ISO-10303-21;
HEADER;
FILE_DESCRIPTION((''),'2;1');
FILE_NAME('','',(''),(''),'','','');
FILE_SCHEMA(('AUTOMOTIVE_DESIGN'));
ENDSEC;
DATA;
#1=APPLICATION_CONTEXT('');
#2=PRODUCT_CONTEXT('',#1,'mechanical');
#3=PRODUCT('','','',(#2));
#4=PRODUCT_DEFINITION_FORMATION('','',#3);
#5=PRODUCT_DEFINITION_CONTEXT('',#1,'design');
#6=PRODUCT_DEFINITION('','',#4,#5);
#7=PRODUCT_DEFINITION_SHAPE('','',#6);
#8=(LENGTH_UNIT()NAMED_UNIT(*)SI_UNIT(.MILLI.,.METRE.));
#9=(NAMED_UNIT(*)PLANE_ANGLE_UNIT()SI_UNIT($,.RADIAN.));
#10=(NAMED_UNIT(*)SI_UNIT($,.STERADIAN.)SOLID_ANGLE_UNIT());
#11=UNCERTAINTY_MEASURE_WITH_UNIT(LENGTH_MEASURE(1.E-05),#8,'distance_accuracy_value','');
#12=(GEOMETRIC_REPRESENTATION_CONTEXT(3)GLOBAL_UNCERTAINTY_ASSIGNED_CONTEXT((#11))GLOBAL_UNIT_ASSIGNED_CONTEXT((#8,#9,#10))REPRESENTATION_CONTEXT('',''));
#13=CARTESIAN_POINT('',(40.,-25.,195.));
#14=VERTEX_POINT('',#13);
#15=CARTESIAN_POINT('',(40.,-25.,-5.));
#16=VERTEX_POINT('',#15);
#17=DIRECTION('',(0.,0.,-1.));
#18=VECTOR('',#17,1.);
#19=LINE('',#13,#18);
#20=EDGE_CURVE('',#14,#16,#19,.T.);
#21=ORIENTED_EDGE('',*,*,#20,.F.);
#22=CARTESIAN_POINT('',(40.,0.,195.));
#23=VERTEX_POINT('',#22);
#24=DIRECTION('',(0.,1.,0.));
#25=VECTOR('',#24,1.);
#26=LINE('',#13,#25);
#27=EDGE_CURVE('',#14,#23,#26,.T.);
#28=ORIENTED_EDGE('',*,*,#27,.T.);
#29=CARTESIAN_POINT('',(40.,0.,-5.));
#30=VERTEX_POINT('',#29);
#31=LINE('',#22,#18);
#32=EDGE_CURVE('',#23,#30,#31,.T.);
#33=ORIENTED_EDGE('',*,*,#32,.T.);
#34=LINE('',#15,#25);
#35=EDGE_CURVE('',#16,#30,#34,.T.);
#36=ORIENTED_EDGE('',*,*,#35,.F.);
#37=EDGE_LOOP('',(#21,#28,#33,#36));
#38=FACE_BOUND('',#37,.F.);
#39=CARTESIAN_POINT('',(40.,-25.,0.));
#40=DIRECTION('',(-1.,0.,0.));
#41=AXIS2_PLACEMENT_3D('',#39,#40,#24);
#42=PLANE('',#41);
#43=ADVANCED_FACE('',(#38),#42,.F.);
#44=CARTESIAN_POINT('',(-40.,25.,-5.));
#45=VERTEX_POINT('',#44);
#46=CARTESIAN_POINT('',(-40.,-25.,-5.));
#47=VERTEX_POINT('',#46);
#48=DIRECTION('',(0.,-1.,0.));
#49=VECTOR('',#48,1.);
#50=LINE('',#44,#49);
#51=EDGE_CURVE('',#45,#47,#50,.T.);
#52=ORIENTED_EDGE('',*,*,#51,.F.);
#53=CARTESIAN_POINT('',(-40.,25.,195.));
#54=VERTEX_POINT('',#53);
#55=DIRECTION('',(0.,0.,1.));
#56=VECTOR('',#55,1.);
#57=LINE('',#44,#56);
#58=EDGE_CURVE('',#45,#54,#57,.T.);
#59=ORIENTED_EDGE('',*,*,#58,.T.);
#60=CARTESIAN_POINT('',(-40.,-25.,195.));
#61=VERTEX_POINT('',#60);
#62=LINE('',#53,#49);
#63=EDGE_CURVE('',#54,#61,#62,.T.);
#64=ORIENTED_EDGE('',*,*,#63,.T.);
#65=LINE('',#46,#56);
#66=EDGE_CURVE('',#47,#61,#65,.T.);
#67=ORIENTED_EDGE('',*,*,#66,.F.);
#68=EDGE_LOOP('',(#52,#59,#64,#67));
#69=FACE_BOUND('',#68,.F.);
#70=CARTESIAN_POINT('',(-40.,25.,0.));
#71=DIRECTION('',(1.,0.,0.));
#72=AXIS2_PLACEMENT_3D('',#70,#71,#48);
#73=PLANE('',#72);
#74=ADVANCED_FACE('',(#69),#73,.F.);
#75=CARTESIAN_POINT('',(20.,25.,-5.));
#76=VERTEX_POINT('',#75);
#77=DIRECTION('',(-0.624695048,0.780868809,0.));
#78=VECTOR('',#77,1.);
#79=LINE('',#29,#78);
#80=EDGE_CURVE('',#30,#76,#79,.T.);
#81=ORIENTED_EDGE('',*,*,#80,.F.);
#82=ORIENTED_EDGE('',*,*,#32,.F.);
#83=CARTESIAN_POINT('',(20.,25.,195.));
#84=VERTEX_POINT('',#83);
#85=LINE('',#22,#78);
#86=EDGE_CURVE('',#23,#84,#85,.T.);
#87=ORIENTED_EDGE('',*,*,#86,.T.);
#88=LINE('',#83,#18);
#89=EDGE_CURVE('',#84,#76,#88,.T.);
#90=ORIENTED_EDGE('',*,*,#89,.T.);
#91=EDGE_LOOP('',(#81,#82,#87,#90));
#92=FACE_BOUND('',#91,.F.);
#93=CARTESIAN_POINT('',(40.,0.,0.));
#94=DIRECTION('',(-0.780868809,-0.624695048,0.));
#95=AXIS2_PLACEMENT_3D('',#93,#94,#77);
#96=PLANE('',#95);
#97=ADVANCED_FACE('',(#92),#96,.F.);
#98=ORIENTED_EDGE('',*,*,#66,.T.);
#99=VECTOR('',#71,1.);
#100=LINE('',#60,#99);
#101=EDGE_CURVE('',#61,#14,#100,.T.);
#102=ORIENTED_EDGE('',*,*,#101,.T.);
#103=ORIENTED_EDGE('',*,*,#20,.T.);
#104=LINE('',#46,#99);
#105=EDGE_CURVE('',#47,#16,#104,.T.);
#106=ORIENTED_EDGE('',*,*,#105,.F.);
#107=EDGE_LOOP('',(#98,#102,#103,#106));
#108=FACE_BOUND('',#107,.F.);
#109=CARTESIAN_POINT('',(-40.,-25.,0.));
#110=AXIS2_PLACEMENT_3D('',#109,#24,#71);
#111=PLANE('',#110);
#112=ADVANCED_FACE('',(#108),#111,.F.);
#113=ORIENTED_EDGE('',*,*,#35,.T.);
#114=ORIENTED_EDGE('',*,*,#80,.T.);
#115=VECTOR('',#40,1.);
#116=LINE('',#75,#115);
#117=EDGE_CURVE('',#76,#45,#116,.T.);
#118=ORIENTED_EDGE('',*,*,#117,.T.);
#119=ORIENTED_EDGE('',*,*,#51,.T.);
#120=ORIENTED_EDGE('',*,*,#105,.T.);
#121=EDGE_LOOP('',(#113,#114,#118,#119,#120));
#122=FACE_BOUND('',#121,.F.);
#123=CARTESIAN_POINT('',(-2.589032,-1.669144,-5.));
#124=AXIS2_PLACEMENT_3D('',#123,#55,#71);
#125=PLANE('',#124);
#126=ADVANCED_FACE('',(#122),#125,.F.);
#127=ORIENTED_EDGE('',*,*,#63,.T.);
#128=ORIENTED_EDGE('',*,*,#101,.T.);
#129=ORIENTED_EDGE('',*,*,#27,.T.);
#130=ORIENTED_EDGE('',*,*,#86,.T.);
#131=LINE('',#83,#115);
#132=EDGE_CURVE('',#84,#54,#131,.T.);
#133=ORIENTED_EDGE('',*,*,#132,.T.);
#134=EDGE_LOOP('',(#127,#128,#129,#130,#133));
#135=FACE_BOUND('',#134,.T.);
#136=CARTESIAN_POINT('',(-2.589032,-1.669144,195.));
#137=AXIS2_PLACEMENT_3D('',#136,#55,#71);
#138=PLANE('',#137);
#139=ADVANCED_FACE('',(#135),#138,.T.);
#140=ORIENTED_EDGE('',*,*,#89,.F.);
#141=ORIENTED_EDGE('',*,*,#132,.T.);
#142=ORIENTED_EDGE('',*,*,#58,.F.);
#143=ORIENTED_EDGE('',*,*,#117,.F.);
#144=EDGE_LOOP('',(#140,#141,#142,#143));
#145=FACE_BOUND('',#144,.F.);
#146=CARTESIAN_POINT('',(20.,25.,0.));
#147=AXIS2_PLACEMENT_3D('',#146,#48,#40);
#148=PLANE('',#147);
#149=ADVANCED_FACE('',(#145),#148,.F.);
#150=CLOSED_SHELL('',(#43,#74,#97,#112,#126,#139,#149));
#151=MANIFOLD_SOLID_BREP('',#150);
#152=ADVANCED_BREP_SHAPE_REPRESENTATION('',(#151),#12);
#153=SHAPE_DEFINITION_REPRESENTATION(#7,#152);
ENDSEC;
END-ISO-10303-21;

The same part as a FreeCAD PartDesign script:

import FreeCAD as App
import Part
import Sketcher

V = App.Vector

doc = App.newDocument("Part")
params = doc.addObject("Spreadsheet::Sheet", "Params")
for row, (alias, value) in enumerate([
    ("sketch1_width", "60 mm"),
    ("sketch1_width2", "80 mm"),
    ("sketch1_height", "50 mm"),
    ("pad1_length", "5 mm"),
    ("sketch2_width", "60 mm"),
    ("sketch2_width2", "80 mm"),
    ("sketch2_height", "50 mm"),
    ("pad2_length", "195 mm"),
], start=1):
    params.set(f"A{row}", alias)
    params.set(f"B{row}", "=" + value)
    params.setAlias(f"B{row}", alias)

body = doc.addObject("PartDesign::Body", "Body")

# Sketch on XY plane
sketch1 = body.newObject("Sketcher::SketchObject", "Sketch")
sketch1.AttachmentSupport = (doc.getObject("XY_Plane"), [""])
sketch1.MapMode = "FlatFace"
sketch1.addGeometry([
    Part.LineSegment(V(20, 25, 0), V(-40, 25, 0)),  # 0
    Part.LineSegment(V(-40, 25, 0), V(-40, -25, 0)),  # 1
    Part.LineSegment(V(-40, -25, 0), V(40, -25, 0)),  # 2
    Part.LineSegment(V(40, -25, 0), V(40, 0, 0)),  # 3
    Part.LineSegment(V(40, 0, 0), V(20, 25, 0)),  # 4
], False)
sketch1.addConstraint([
    Sketcher.Constraint("Coincident", 0, 2, 1, 1),
    Sketcher.Constraint("Coincident", 1, 2, 2, 1),
    Sketcher.Constraint("Coincident", 2, 2, 3, 1),
    Sketcher.Constraint("Coincident", 3, 2, 4, 1),
    Sketcher.Constraint("Coincident", 4, 2, 0, 1),
    Sketcher.Constraint("Horizontal", 0),
    Sketcher.Constraint("Vertical", 1),
    Sketcher.Constraint("Horizontal", 2),
    Sketcher.Constraint("Vertical", 3),
    Sketcher.Constraint("Symmetric", 0, 2, 2, 2, -1, 1),
    Sketcher.Constraint("PointOnObject", 3, 2, -1),
    Sketcher.Constraint("DistanceX", 0, 2, 0, 1, 60.0),
    Sketcher.Constraint("DistanceX", 2, 1, 2, 2, 80.0),
    Sketcher.Constraint("DistanceY", 1, 2, 1, 1, 50.0),
])
sketch1.setExpression("Constraints[11]", "Params.sketch1_width")
sketch1.setExpression("Constraints[12]", "Params.sketch1_width2")
sketch1.setExpression("Constraints[13]", "Params.sketch1_height")
pad1 = body.newObject("PartDesign::Pad", "Pad")
pad1.Profile = sketch1
pad1.setExpression("Length", "Params.pad1_length")
pad1.Reversed = True

# Sketch on XY plane
sketch2 = body.newObject("Sketcher::SketchObject", "Sketch001")
sketch2.AttachmentSupport = (doc.getObject("XY_Plane"), [""])
sketch2.MapMode = "FlatFace"
sketch2.addGeometry([
    Part.LineSegment(V(20, 25, 0), V(-40, 25, 0)),  # 0
    Part.LineSegment(V(-40, 25, 0), V(-40, -25, 0)),  # 1
    Part.LineSegment(V(-40, -25, 0), V(40, -25, 0)),  # 2
    Part.LineSegment(V(40, -25, 0), V(40, 0, 0)),  # 3
    Part.LineSegment(V(40, 0, 0), V(20, 25, 0)),  # 4
], False)
sketch2.addConstraint([
    Sketcher.Constraint("Coincident", 0, 2, 1, 1),
    Sketcher.Constraint("Coincident", 1, 2, 2, 1),
    Sketcher.Constraint("Coincident", 2, 2, 3, 1),
    Sketcher.Constraint("Coincident", 3, 2, 4, 1),
    Sketcher.Constraint("Coincident", 4, 2, 0, 1),
    Sketcher.Constraint("Horizontal", 0),
    Sketcher.Constraint("Vertical", 1),
    Sketcher.Constraint("Horizontal", 2),
    Sketcher.Constraint("Vertical", 3),
    Sketcher.Constraint("Symmetric", 0, 2, 2, 2, -1, 1),
    Sketcher.Constraint("PointOnObject", 3, 2, -1),
    Sketcher.Constraint("DistanceX", 0, 2, 0, 1, 60.0),
    Sketcher.Constraint("DistanceX", 2, 1, 2, 2, 80.0),
    Sketcher.Constraint("DistanceY", 1, 2, 1, 1, 50.0),
])
sketch2.setExpression("Constraints[11]", "Params.sketch2_width")
sketch2.setExpression("Constraints[12]", "Params.sketch2_width2")
sketch2.setExpression("Constraints[13]", "Params.sketch2_height")
pad2 = body.newObject("PartDesign::Pad", "Pad001")
pad2.Profile = sketch2
pad2.setExpression("Length", "Params.pad2_length")

doc.recompute()
